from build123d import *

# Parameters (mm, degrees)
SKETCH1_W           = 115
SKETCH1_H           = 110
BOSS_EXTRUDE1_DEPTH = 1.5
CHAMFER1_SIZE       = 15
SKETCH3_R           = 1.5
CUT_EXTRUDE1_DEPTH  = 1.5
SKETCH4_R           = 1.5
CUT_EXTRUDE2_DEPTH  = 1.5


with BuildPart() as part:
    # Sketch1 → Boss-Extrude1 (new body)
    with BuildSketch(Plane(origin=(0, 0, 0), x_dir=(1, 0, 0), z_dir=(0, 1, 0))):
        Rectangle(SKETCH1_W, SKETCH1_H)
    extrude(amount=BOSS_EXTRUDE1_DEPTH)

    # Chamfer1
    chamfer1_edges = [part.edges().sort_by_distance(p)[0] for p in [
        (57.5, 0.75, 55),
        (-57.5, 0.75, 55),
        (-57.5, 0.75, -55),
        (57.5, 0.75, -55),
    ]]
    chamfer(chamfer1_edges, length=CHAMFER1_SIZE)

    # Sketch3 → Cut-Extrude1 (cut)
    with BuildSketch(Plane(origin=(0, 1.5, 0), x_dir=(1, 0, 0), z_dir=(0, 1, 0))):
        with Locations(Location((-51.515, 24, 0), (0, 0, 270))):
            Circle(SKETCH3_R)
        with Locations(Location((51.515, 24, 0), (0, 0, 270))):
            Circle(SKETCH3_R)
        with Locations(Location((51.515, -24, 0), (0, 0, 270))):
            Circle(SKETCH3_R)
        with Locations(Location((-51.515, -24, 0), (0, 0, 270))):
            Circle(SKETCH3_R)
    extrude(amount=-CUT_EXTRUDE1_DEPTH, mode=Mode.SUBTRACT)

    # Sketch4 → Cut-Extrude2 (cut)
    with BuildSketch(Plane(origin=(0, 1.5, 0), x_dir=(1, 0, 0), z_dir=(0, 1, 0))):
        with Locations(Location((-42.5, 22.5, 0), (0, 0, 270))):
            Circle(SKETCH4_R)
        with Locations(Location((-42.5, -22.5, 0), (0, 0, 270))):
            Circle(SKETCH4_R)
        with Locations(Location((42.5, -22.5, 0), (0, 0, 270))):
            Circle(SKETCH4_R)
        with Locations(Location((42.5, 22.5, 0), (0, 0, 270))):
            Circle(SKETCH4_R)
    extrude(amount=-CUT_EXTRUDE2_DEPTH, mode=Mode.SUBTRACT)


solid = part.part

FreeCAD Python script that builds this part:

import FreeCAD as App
import Part
import Sketcher

V = App.Vector
Q = App.Units.Quantity


def edges_at(feature, points):
    """Names of the edges that pass closest to the given points."""
    edges = feature.Shape.Edges
    near = lambda p: min(range(len(edges)), key=lambda i: edges[i].distToShape(Part.Vertex(*p))[0])
    return sorted({f"Edge{near(p) + 1}" for p in points})

doc = App.newDocument("Part")
body = doc.addObject("PartDesign::Body", "Body")

# Sketch on XZ plane
sketch1 = body.newObject("Sketcher::SketchObject", "Sketch")
sketch1.AttachmentSupport = (doc.getObject("XZ_Plane"), [""])
sketch1.MapMode = "FlatFace"
sketch1.addGeometry([
    Part.LineSegment(V(-57.5, -55, 0), V(-57.5, 55, 0)),
    Part.LineSegment(V(-57.5, 55, 0), V(57.5, 55, 0)),
    Part.LineSegment(V(57.5, 55, 0), V(57.5, -55, 0)),
    Part.LineSegment(V(57.5, -55, 0), V(-57.5, -55, 0)),
], False)
sketch1.addConstraint([
    Sketcher.Constraint("Coincident", 0, 2, 1, 1),
    Sketcher.Constraint("Coincident", 1, 2, 2, 1),
    Sketcher.Constraint("Coincident", 2, 2, 3, 1),
    Sketcher.Constraint("Coincident", 3, 2, 0, 1),
    Sketcher.Constraint("Vertical", 0),
    Sketcher.Constraint("Horizontal", 1),
    Sketcher.Constraint("Vertical", 2),
    Sketcher.Constraint("Horizontal", 3),
    Sketcher.Constraint("Symmetric", 0, 2, 2, 2, -1, 1),
    Sketcher.Constraint("DistanceX", 1, 1, 1, 2, Q("115 mm")),
    Sketcher.Constraint("DistanceY", 0, 1, 0, 2, Q("110 mm")),
])
pad1 = body.newObject("PartDesign::Pad", "Pad")
pad1.Profile = sketch1
pad1.Length = 1.5
pad1.Reversed = True
doc.recompute()

chamfer = body.newObject("PartDesign::Chamfer", "Chamfer")
chamfer.Base = (pad1, edges_at(pad1, [
    (57.5, 0.75, 55),
    (-57.5, 0.75, 55),
    (-57.5, 0.75, -55),
    (57.5, 0.75, -55),
]))
chamfer.Size = 15

# Sketch on XZ plane
sketch2 = body.newObject("Sketcher::SketchObject", "Sketch001")
sketch2.AttachmentSupport = (doc.getObject("XZ_Plane"), [""])
sketch2.MapMode = "FlatFace"
sketch2.AttachmentOffset = App.Placement(V(0, 0, -1.5), App.Rotation())
sketch2.addGeometry([
    Part.Circle(V(-51.515, -24, 0), V(0, 0, 1), 1.5),
    Part.Circle(V(51.515, -24, 0), V(0, 0, 1), 1.5),
    Part.Circle(V(51.515, 24, 0), V(0, 0, 1), 1.5),
    Part.Circle(V(-51.515, 24, 0), V(0, 0, 1), 1.5),
], False)
sketch2.addConstraint([
    Sketcher.Constraint("Equal", 0, 1),
    Sketcher.Constraint("Equal", 1, 2),
    Sketcher.Constraint("Equal", 2, 3),
    Sketcher.Constraint("Symmetric", 0, 3, 2, 3, -1, 1),
    Sketcher.Constraint("Symmetric", 1, 3, 3, 3, -1, 1),
    Sketcher.Constraint("Symmetric", 0, 3, 1, 3, -2),
    Sketcher.Constraint("Diameter", 0, Q("3 mm")),
    Sketcher.Constraint("DistanceY", 0, 3, -1, 1, Q("24 mm")),
    Sketcher.Constraint("DistanceX", 0, 3, 1, 3, Q("103.03 mm")),
])
pocket1 = body.newObject("PartDesign::Pocket", "Pocket")
pocket1.Profile = sketch2
pocket1.Length = 1.5
pocket1.Reversed = True

# Sketch on XZ plane
sketch3 = body.newObject("Sketcher::SketchObject", "Sketch002")
sketch3.AttachmentSupport = (doc.getObject("XZ_Plane"), [""])
sketch3.MapMode = "FlatFace"
sketch3.AttachmentOffset = App.Placement(V(0, 0, -1.5), App.Rotation())
sketch3.addGeometry([
    Part.Circle(V(-42.5, -22.5, 0), V(0, 0, 1), 1.5),
    Part.Circle(V(-42.5, 22.5, 0), V(0, 0, 1), 1.5),
    Part.Circle(V(42.5, 22.5, 0), V(0, 0, 1), 1.5),
    Part.Circle(V(42.5, -22.5, 0), V(0, 0, 1), 1.5),
], False)
sketch3.addConstraint([
    Sketcher.Constraint("Equal", 0, 1),
    Sketcher.Constraint("Equal", 1, 2),
    Sketcher.Constraint("Equal", 2, 3),
    Sketcher.Constraint("Symmetric", 0, 3, 2, 3, -1, 1),
    Sketcher.Constraint("Symmetric", 1, 3, 3, 3, -1, 1),
    Sketcher.Constraint("Symmetric", 1, 3, 2, 3, -2),
    Sketcher.Constraint("Diameter", 0, Q("3 mm")),
    Sketcher.Constraint("DistanceY", 0, 3, 1, 3, Q("45 mm")),
    Sketcher.Constraint("DistanceX", 1, 3, 2, 3, Q("85 mm")),
])
pocket2 = body.newObject("PartDesign::Pocket", "Pocket001")
pocket2.Profile = sketch3
pocket2.Length = 1.5
pocket2.Reversed = True

doc.recompute()
